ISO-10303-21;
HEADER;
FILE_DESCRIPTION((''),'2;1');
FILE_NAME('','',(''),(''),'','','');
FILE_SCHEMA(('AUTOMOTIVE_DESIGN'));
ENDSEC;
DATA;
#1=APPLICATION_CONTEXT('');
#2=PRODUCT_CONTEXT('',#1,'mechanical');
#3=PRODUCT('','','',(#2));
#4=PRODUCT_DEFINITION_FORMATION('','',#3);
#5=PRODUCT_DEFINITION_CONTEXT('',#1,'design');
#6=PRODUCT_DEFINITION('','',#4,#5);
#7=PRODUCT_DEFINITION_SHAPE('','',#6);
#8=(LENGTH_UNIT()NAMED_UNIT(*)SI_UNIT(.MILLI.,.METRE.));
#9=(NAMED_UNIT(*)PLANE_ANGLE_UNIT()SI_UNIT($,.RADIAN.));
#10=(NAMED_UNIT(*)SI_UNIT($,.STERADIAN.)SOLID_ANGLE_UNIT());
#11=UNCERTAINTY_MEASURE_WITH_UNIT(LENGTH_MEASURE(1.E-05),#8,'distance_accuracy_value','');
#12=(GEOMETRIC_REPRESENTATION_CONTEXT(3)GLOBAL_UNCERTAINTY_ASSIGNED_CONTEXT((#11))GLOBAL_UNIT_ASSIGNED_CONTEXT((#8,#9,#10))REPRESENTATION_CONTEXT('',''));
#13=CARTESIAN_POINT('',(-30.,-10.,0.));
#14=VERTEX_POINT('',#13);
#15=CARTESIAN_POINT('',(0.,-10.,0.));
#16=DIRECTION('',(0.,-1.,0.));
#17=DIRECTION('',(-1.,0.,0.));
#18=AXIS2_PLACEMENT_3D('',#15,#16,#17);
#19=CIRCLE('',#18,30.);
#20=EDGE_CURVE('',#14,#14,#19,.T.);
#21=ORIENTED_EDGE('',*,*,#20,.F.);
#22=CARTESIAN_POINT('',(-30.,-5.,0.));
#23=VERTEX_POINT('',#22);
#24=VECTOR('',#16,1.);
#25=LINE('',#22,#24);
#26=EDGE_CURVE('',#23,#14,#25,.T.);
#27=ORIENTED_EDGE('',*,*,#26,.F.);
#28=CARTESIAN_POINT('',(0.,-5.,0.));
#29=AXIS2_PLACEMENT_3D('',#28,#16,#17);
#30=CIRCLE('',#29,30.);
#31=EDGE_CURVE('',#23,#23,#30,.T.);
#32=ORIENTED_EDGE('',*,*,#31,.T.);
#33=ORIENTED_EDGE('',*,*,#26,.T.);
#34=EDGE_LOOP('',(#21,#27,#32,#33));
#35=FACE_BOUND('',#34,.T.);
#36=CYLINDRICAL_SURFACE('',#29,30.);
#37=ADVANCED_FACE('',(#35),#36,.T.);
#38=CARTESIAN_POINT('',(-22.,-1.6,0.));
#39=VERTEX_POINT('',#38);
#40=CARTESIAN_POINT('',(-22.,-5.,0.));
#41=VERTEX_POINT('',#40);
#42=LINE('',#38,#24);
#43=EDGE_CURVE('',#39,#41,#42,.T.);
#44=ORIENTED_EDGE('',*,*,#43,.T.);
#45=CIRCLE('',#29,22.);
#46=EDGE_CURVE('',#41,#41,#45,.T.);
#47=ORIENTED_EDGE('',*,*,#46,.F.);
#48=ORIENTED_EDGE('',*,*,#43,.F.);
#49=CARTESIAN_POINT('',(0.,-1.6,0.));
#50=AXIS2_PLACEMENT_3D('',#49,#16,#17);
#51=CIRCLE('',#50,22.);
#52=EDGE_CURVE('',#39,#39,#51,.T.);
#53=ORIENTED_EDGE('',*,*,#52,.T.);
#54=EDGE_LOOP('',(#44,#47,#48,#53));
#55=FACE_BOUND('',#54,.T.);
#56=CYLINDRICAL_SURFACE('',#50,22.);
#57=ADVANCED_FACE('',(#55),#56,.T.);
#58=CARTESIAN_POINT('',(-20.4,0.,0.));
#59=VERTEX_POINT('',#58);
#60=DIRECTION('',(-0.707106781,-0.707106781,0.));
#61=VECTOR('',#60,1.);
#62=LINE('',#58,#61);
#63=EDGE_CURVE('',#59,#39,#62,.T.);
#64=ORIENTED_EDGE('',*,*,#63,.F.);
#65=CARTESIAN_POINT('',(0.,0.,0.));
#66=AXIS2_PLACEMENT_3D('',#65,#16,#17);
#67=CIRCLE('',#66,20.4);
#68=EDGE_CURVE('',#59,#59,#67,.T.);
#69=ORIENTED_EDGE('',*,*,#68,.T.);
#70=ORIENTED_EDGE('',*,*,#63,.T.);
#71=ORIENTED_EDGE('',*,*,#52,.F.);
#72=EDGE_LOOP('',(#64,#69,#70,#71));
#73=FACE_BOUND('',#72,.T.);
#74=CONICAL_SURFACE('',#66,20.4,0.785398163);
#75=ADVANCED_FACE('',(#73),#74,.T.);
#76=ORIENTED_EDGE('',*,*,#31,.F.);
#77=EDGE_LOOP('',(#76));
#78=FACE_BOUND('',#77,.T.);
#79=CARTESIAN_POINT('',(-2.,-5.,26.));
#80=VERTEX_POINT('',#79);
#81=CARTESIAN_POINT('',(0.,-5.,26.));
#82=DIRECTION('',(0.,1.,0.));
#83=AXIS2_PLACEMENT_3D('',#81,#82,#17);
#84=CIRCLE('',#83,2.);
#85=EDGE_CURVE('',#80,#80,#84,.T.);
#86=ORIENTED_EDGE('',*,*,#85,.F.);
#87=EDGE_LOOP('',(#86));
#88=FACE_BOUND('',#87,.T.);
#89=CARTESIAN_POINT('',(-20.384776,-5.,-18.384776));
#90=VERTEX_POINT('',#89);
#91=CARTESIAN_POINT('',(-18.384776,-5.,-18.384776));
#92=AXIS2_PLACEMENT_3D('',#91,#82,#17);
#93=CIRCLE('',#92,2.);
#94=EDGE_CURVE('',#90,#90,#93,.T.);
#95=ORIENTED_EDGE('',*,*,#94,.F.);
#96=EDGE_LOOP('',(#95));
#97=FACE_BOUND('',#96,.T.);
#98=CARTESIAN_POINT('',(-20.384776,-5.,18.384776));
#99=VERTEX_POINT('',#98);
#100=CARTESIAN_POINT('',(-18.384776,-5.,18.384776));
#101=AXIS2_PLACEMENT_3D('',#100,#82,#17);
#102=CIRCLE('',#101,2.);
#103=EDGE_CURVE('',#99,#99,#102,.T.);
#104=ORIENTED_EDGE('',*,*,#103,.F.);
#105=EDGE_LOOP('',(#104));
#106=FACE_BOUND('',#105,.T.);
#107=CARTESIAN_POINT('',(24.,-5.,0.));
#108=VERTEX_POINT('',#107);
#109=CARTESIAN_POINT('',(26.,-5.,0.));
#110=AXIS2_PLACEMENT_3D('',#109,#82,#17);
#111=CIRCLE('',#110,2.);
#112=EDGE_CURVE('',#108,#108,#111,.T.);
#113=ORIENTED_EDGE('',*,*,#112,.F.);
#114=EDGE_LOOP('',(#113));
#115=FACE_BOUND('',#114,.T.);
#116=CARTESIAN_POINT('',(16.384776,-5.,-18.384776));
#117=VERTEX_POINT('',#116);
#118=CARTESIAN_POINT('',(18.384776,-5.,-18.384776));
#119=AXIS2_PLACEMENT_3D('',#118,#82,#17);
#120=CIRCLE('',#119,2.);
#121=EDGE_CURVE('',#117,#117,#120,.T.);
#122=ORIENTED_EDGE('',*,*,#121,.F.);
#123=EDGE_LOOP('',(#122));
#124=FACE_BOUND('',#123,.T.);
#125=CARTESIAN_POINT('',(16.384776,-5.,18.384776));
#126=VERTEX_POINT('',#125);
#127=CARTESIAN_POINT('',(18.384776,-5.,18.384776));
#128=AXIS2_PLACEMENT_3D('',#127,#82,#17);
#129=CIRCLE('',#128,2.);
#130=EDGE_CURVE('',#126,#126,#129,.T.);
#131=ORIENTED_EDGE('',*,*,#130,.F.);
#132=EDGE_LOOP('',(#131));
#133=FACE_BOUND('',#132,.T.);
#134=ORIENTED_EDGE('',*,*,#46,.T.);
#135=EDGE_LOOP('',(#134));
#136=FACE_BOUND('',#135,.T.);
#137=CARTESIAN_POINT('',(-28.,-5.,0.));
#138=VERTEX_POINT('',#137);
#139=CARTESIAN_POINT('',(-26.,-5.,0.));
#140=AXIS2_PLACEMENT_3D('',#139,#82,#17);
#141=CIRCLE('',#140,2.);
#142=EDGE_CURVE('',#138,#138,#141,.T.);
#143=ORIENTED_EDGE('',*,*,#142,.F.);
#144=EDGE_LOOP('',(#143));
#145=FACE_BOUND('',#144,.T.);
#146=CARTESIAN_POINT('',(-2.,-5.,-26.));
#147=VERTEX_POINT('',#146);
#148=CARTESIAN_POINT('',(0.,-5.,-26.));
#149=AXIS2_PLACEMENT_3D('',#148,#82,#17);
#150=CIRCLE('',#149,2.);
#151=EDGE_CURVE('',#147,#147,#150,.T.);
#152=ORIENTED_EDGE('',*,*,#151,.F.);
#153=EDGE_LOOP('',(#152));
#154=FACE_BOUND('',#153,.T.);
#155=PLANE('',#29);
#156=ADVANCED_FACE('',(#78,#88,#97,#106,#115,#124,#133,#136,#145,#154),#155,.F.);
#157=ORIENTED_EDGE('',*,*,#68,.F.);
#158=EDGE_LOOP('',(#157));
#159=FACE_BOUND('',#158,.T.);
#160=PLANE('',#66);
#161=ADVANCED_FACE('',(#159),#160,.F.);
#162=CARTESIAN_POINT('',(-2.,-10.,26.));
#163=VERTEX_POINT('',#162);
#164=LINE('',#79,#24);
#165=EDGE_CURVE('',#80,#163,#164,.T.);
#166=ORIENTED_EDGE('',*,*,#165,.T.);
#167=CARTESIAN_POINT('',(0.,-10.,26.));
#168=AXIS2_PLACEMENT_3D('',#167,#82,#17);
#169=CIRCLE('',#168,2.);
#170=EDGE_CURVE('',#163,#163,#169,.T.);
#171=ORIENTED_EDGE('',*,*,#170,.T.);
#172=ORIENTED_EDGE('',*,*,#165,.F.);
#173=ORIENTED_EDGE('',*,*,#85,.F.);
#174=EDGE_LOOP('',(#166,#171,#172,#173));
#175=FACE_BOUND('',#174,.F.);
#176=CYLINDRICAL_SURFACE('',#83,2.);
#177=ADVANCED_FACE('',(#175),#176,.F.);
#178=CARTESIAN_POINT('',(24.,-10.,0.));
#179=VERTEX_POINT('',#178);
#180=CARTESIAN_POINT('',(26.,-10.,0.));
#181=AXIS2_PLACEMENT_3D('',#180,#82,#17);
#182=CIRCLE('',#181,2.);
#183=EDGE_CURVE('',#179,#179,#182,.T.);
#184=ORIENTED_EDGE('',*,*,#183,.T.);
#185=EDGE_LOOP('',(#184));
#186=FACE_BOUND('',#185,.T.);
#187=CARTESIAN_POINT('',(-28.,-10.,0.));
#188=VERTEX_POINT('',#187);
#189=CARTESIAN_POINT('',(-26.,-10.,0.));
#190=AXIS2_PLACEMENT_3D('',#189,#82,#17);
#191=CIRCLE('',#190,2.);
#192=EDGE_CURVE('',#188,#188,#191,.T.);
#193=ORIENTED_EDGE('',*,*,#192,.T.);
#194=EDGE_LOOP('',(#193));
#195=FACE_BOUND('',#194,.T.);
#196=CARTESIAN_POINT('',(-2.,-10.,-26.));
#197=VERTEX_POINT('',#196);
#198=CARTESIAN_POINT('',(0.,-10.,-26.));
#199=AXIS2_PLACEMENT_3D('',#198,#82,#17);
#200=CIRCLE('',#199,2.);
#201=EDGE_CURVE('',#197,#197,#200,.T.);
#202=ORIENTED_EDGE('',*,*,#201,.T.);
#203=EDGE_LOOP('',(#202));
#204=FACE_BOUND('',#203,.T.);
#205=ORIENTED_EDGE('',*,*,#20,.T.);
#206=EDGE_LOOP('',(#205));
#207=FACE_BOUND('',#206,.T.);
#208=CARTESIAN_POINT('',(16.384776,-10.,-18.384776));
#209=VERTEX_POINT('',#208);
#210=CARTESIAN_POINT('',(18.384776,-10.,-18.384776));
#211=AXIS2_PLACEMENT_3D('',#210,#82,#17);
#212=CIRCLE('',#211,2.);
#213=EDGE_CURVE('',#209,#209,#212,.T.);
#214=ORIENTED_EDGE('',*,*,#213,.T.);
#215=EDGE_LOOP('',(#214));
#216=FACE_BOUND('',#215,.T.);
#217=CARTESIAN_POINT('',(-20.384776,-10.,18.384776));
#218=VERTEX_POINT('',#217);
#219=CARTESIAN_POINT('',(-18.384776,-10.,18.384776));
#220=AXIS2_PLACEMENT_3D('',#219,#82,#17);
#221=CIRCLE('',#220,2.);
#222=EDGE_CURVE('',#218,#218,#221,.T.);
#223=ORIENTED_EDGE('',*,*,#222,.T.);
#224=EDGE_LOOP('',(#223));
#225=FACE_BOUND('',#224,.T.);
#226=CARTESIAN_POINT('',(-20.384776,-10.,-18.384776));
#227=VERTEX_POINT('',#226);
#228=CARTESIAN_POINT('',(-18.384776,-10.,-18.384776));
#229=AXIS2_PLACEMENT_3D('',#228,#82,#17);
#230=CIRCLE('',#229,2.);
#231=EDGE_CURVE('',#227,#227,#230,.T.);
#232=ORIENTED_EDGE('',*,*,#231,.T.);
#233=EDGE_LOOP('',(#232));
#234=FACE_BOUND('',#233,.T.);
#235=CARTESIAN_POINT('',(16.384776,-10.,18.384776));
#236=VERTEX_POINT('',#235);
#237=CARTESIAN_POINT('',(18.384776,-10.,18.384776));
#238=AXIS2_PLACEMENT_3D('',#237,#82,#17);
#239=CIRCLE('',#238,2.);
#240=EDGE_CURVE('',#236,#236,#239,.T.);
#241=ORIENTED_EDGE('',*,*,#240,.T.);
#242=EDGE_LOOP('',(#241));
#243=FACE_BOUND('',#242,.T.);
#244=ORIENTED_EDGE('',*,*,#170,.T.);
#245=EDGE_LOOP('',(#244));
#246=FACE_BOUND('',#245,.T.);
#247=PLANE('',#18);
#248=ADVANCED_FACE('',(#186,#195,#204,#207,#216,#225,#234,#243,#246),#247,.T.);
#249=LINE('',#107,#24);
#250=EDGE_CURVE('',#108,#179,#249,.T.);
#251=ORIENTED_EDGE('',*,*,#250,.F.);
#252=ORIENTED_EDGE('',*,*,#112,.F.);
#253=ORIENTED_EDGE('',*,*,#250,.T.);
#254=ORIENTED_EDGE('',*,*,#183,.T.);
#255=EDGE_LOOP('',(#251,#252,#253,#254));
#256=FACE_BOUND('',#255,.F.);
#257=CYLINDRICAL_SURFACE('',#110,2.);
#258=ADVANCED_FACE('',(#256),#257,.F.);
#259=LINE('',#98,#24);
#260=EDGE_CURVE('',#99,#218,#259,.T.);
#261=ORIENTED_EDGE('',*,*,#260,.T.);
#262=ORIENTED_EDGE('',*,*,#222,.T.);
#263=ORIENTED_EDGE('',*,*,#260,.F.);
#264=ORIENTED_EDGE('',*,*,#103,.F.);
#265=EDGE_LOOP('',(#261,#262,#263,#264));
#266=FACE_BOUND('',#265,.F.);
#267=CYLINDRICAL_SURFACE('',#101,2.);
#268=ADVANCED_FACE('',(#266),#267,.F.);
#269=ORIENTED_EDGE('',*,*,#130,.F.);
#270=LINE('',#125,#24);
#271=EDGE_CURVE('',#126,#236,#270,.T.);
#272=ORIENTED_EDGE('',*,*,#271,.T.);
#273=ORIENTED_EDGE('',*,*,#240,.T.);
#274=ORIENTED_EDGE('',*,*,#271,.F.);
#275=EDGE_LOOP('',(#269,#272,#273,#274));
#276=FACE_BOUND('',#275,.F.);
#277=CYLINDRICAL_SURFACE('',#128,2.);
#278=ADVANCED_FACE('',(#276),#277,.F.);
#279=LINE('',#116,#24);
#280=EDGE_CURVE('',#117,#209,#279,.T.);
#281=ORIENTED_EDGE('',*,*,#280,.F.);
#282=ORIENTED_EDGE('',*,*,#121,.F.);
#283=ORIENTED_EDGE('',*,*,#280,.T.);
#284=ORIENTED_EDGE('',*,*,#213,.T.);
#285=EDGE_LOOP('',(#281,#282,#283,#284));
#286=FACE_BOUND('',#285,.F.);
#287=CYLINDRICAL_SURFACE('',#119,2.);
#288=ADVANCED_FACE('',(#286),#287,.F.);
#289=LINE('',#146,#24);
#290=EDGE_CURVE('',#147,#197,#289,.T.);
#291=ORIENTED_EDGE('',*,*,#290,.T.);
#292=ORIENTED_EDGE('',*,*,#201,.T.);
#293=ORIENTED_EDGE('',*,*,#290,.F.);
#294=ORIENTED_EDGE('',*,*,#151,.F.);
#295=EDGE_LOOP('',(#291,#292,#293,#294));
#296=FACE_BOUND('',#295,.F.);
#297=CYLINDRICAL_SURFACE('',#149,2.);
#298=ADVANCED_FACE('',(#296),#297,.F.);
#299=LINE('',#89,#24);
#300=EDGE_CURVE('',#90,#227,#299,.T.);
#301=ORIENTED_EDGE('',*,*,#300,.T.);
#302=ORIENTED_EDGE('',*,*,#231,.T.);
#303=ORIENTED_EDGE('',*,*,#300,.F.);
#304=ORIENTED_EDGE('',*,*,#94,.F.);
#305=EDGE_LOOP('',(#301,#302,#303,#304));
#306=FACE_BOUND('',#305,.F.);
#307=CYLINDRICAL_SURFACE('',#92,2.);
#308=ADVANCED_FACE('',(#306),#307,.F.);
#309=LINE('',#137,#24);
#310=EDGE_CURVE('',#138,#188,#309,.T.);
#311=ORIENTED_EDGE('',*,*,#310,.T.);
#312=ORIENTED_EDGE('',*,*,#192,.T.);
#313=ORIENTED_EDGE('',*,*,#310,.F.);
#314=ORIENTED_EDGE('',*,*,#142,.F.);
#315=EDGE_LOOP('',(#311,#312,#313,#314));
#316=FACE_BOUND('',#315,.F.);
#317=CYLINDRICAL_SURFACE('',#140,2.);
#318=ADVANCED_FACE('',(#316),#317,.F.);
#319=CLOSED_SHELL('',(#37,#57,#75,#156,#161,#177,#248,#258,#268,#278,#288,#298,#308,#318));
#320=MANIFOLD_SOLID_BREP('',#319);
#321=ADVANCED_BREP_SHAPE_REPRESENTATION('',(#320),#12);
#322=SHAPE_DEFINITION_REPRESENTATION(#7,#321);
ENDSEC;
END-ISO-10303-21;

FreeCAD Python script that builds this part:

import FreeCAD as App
import Part
import Sketcher
from FreeCAD import Vector
Q = App.Units.Quantity


def add_polygon(sketch, points):
    """Adds a closed chain of lines whose ends are joined by coincident constraints."""
    first, n = sketch.GeometryCount, len(points)
    for a, b in zip(points, points[1:] + points[:1]):
        sketch.addGeometry(Part.LineSegment(App.Vector(*a, 0), App.Vector(*b, 0)), False)
    for i in range(n):
        sketch.addConstraint(Sketcher.Constraint("Coincident", first + i, 2, first + (i + 1) % n, 1))

doc = App.newDocument("Part")
params = doc.addObject("Spreadsheet::Sheet", "Params")
for row, (alias, value) in enumerate([
    ("sketch1_width", "30 mm"),
    ("sketch1_width2", "8 mm"),
    ("sketch1_height", "10 mm"),
    ("sketch1_height2", "5 mm"),
    ("sketch1_width3", "20.4 mm"),
    ("revolution_angle", "360 deg"),
    ("sketch2_diameter", "4 mm"),
    ("pocket1_length", "20 mm"),
], start=1):
    params.set(f"A{row}", alias)
    params.set(f"B{row}", "=" + value)
    params.setAlias(f"B{row}", alias)

body = doc.addObject("PartDesign::Body", "Body")

# Sketch on XY plane
sketch1 = doc.addObject("Sketcher::SketchObject", "Sketch")
body.addObject(sketch1)
sketch1.AttachmentSupport = (doc.XY_Plane, [""])
sketch1.MapMode = "FlatFace"
add_polygon(sketch1, [(-30, -10), (0, -10), (0, 0), (-20.4, 0), (-22, -1.6), (-22, -5), (-30, -5)])  # lines 0-6
sketch1.addConstraint(Sketcher.Constraint("Horizontal", 0))
sketch1.addConstraint(Sketcher.Constraint("Vertical", 1))
sketch1.addConstraint(Sketcher.Constraint("Horizontal", 2))
sketch1.addConstraint(Sketcher.Constraint("Vertical", 4))
sketch1.addConstraint(Sketcher.Constraint("Horizontal", 5))
sketch1.addConstraint(Sketcher.Constraint("Vertical", 6))
sketch1.addConstraint(Sketcher.Constraint("Coincident", 1, 2, -1, 1))
sketch1.addConstraint(Sketcher.Constraint("DistanceX", 0, 1, 0, 2, 30.0))
sketch1.addConstraint(Sketcher.Constraint("DistanceX", 5, 2, 5, 1, 8.0))
sketch1.addConstraint(Sketcher.Constraint("DistanceY", 1, 1, 1, 2, 10.0))
sketch1.addConstraint(Sketcher.Constraint("DistanceY", 6, 2, 6, 1, 5.0))
sketch1.addConstraint(Sketcher.Constraint("Angle", 3, Q("-135 deg")))
sketch1.addConstraint(Sketcher.Constraint("DistanceX", 2, 2, 2, 1, 20.4))
sketch1.setExpression("Constraints[14]", "Params.sketch1_width")
sketch1.setExpression("Constraints[15]", "Params.sketch1_width2")
sketch1.setExpression("Constraints[16]", "Params.sketch1_height")
sketch1.setExpression("Constraints[17]", "Params.sketch1_height2")
sketch1.setExpression("Constraints[19]", "Params.sketch1_width3")
revolution = doc.addObject("PartDesign::Revolution", "Revolution")
body.addObject(revolution)
revolution.Profile = sketch1
revolution.ReferenceAxis = (sketch1, ["V_Axis"])
revolution.setExpression("Angle", "Params.revolution_angle")

# Sketch on XZ plane
sketch2 = doc.addObject("Sketcher::SketchObject", "Sketch001")
body.addObject(sketch2)
sketch2.AttachmentSupport = (doc.XZ_Plane, [""])
sketch2.MapMode = "FlatFace"
sketch2.AttachmentOffset = App.Placement(Vector(0, 0, 5), App.Rotation())
sketch2.addGeometry(Part.Circle(Vector(0, -26, 0), Vector(0, 0, 1), 2), False)
sketch2.addGeometry(Part.Circle(Vector(18.384776, -18.384776, 0), Vector(0, 0, 1), 2), False)
sketch2.addGeometry(Part.Circle(Vector(26, 0, 0), Vector(0, 0, 1), 2), False)
sketch2.addGeometry(Part.Circle(Vector(18.384776, 18.384776, 0), Vector(0, 0, 1), 2), False)
sketch2.addGeometry(Part.Circle(Vector(0, 26, 0), Vector(0, 0, 1), 2), False)
sketch2.addGeometry(Part.Circle(Vector(-18.384776, 18.384776, 0), Vector(0, 0, 1), 2), False)
sketch2.addGeometry(Part.Circle(Vector(-26, 0, 0), Vector(0, 0, 1), 2), False)
sketch2.addGeometry(Part.Circle(Vector(-18.384776, -18.384776, 0), Vector(0, 0, 1), 2), False)
sketch2.addConstraint(Sketcher.Constraint("Equal", 0, 1))
sketch2.addConstraint(Sketcher.Constraint("Equal", 1, 2))
sketch2.addConstraint(Sketcher.Constraint("Equal", 2, 3))
sketch2.addConstraint(Sketcher.Constraint("Equal", 3, 4))
sketch2.addConstraint(Sketcher.Constraint("Equal", 4, 5))
sketch2.addConstraint(Sketcher.Constraint("Equal", 5, 6))
sketch2.addConstraint(Sketcher.Constraint("Equal", 6, 7))
sketch2.addConstraint(Sketcher.Constraint("Symmetric", 0, 3, 4, 3, -1, 1))
sketch2.addConstraint(Sketcher.Constraint("Symmetric", 1, 3, 5, 3, -1, 1))
sketch2.addConstraint(Sketcher.Constraint("Symmetric", 2, 3, 6, 3, -1, 1))
sketch2.addConstraint(Sketcher.Constraint("Symmetric", 3, 3, 7, 3, -1, 1))
sketch2.addConstraint(Sketcher.Constraint("Symmetric", 3, 3, 5, 3, -2))
sketch2.addConstraint(Sketcher.Constraint("PointOnObject", 0, 3, -2))
sketch2.addConstraint(Sketcher.Constraint("PointOnObject", 2, 3, -1))
sketch2.addConstraint(Sketcher.Constraint("Diameter", 0, 4.0))
sketch2.addConstraint(Sketcher.Constraint("DistanceY", 0, 3, -1, 1, 26.0))
sketch2.addConstraint(Sketcher.Constraint("DistanceX", -1, 1, 2, 3, 26.0))
sketch2.addConstraint(Sketcher.Constraint("DistanceX", -1, 1, 1, 3, 18.384776))
sketch2.addConstraint(Sketcher.Constraint("DistanceY", 1, 3, -1, 1, 18.384776))
sketch2.setExpression("Constraints[14]", "Params.sketch2_diameter")
pocket1 = doc.addObject("PartDesign::Pocket", "Pocket")
body.addObject(pocket1)
pocket1.Profile = sketch2
pocket1.setExpression("Length", "Params.pocket1_length")
pocket1.Reversed = True

doc.recompute()
